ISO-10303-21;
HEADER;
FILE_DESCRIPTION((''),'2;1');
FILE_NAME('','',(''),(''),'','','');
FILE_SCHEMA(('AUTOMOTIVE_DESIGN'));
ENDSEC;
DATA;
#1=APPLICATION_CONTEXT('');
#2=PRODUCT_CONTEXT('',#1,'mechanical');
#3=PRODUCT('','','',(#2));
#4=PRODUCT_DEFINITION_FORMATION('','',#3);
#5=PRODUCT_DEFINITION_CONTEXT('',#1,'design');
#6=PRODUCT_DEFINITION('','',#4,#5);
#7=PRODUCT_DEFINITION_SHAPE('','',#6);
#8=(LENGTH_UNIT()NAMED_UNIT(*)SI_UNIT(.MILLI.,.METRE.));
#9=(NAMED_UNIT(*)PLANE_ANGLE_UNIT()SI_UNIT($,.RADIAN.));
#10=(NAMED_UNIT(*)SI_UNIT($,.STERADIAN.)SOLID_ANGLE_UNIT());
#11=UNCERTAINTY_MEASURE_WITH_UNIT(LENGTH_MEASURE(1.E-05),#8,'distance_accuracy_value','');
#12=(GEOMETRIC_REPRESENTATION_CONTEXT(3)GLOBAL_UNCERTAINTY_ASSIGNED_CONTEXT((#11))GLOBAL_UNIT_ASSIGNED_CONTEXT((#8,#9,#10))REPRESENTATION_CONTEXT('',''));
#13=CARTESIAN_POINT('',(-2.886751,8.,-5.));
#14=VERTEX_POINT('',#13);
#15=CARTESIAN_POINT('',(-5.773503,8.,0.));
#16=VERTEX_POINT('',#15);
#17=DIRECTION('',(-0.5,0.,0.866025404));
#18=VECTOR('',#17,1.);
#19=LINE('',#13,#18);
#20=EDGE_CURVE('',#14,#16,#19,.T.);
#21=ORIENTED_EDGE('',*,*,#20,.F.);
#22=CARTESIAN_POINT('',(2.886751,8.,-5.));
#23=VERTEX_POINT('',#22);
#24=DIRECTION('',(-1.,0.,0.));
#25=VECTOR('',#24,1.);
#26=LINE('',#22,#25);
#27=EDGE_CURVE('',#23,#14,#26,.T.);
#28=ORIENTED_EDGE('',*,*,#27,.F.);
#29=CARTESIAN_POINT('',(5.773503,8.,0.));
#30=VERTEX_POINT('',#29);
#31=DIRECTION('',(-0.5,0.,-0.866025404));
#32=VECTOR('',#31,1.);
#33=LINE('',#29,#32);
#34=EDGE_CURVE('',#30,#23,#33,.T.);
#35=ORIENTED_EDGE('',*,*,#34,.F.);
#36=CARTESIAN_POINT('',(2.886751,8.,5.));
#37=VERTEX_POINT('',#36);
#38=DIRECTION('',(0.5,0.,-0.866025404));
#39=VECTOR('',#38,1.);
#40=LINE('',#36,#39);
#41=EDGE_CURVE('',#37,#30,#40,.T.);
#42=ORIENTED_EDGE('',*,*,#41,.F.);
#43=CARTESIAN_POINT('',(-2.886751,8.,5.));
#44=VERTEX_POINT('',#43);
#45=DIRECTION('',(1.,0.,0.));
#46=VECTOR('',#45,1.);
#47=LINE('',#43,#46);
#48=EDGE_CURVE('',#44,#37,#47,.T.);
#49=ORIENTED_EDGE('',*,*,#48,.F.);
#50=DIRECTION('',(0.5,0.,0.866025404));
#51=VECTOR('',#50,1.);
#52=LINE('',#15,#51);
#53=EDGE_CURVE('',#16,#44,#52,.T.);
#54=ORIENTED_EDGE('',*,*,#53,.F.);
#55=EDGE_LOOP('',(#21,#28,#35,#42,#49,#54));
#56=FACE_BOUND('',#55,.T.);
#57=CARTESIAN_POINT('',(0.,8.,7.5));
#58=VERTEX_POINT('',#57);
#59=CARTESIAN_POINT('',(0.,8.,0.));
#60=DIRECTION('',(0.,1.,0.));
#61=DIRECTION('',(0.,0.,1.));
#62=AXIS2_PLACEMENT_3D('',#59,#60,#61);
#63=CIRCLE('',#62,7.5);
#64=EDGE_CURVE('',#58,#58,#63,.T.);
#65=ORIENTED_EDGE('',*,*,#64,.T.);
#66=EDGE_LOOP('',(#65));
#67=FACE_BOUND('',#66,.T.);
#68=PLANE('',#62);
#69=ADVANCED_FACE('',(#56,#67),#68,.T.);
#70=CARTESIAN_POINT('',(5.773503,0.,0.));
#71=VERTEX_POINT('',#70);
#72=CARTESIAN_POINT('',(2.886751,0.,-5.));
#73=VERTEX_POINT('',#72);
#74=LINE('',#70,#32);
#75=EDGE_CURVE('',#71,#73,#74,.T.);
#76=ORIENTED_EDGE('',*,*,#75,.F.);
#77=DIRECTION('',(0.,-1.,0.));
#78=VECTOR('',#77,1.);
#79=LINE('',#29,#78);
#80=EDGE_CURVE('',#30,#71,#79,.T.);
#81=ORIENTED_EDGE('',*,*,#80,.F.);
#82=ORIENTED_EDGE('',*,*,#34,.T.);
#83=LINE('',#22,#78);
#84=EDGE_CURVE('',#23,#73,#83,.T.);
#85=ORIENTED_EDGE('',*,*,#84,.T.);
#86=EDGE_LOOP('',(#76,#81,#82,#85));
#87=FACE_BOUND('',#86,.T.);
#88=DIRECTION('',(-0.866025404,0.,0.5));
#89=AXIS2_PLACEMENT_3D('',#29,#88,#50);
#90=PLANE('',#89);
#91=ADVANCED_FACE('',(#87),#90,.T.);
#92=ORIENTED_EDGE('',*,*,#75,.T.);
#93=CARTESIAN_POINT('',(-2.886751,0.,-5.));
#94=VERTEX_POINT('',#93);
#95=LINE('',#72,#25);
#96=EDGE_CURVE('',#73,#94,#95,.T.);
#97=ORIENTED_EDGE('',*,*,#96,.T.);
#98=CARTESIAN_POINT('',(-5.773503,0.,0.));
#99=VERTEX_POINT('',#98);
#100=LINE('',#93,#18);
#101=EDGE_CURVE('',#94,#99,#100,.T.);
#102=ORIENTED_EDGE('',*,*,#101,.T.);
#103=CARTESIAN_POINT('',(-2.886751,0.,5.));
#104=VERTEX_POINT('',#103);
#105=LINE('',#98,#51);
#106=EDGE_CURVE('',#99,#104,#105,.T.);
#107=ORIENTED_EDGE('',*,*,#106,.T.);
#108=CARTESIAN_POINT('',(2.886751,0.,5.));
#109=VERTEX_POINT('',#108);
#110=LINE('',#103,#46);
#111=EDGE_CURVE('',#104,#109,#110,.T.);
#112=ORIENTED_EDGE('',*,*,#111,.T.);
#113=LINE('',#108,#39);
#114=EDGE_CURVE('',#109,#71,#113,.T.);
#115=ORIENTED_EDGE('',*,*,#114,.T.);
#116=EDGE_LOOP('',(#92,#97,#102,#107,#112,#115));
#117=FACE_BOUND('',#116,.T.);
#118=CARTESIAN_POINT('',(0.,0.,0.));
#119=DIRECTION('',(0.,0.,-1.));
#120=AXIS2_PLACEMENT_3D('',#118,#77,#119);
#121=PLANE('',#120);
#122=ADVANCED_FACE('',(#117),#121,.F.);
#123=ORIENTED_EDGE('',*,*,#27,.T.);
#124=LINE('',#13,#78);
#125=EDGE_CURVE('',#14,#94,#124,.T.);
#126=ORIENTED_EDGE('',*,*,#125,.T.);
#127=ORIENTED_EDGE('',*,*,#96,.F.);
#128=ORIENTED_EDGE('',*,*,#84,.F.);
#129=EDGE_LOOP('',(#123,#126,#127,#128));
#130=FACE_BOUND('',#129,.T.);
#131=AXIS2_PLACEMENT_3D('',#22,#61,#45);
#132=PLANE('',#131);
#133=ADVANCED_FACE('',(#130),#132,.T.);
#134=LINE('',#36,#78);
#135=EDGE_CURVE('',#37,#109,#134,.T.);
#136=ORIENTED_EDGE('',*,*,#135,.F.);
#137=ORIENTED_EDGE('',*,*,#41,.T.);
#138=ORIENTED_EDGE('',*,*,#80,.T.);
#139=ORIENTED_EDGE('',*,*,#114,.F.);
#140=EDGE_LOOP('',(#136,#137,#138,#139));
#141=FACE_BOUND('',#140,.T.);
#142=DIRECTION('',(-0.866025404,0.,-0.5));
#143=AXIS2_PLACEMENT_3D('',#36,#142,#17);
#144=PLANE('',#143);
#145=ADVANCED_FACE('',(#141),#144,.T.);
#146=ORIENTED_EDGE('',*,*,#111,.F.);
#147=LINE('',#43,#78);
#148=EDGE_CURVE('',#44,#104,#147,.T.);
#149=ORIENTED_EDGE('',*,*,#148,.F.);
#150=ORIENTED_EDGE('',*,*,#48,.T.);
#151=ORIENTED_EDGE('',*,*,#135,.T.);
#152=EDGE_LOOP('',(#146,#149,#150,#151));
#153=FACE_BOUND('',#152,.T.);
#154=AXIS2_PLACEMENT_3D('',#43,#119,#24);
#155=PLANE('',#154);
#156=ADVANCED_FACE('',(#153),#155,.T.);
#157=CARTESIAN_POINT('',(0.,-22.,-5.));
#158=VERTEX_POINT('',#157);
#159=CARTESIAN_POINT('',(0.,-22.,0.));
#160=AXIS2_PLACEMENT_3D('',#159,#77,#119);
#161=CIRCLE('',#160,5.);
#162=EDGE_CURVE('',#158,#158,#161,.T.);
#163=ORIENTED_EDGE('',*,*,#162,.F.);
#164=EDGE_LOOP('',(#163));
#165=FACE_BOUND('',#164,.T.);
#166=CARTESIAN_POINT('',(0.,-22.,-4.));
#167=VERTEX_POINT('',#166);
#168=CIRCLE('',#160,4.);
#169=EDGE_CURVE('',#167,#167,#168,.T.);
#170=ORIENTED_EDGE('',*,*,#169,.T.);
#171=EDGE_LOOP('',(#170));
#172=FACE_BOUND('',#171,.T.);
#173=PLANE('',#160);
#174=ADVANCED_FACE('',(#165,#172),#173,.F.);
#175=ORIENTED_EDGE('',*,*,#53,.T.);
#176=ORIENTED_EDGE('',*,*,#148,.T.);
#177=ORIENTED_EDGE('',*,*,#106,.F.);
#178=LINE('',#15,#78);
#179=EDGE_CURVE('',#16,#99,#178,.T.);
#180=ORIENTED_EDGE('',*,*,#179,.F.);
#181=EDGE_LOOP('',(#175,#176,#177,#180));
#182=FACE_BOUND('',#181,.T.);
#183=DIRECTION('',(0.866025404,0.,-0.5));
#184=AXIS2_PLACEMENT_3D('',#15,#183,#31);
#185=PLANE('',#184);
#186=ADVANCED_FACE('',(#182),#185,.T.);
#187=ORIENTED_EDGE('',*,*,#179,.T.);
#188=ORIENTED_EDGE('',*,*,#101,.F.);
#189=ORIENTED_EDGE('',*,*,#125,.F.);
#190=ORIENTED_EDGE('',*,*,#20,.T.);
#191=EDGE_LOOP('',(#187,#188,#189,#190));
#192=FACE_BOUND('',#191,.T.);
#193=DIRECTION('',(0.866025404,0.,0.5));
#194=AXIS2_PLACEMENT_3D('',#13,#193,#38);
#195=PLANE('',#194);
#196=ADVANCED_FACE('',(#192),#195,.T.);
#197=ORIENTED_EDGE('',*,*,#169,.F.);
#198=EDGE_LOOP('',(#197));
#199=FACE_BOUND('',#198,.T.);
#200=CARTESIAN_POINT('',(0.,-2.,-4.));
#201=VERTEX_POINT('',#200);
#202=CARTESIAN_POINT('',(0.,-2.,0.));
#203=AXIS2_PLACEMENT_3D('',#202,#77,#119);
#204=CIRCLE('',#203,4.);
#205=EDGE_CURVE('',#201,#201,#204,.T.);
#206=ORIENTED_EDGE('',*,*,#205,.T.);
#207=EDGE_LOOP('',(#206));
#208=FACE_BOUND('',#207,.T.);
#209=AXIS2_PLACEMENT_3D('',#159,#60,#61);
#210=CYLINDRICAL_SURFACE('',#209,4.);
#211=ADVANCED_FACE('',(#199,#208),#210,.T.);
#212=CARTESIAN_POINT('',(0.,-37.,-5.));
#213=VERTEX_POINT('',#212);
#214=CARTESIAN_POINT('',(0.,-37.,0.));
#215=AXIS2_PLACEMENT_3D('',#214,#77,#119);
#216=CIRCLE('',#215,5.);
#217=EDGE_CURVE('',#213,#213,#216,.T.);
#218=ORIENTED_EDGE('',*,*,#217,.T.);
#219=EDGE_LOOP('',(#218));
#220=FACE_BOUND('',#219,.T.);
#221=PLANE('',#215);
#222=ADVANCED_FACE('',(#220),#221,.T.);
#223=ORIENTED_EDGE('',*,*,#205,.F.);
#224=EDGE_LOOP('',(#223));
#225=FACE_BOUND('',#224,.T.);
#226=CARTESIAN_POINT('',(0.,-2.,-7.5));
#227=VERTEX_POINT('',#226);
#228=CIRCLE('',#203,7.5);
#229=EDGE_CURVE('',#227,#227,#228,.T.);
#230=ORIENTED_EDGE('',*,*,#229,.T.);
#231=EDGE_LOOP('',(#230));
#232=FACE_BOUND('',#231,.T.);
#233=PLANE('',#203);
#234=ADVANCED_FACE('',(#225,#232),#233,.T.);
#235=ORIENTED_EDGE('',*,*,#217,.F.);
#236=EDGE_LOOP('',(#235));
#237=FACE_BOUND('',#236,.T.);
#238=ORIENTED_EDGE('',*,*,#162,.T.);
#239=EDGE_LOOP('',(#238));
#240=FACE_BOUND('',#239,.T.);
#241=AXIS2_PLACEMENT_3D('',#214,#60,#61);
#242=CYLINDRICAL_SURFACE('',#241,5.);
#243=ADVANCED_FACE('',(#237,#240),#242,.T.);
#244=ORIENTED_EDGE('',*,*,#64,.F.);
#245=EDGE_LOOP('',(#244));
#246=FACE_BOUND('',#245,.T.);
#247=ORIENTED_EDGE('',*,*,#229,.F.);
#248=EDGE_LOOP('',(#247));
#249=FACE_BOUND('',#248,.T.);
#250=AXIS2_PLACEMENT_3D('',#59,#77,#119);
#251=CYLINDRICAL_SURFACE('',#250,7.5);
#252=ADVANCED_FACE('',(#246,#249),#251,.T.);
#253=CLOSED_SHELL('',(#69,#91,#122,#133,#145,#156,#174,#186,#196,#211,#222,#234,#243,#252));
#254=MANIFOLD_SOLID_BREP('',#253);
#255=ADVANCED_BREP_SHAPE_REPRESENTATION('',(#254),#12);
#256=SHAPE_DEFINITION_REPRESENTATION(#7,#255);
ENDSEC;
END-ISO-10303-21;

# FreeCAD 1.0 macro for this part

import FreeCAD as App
import Part
import Sketcher
Q = App.Units.Quantity

doc = App.newDocument("Part")
body = doc.addObject("PartDesign::Body", "Body")

sketch1 = body.newObject("Sketcher::SketchObject", "Sketch")
sketch1.AttachmentSupport = (doc.getObject("XZ_Plane"), [""])
sketch1.MapMode = "FlatFace"
sketch1.addGeometry([
    Part.Circle(App.Vector(0, 0, 0), App.Vector(0, 0, 1), 8),
    Part.LineSegment(App.Vector(3, -5, 0), App.Vector(6, 0, 0)),
    Part.LineSegment(App.Vector(6, 0, 0), App.Vector(3, 5, 0)),
    Part.LineSegment(App.Vector(3, 5, 0), App.Vector(-3, 5, 0)),
    Part.LineSegment(App.Vector(-3, 5, 0), App.Vector(-6, 0, 0)),
    Part.LineSegment(App.Vector(-6, 0, 0), App.Vector(-3, -5, 0)),
    Part.LineSegment(App.Vector(-3, -5, 0), App.Vector(3, -5, 0)),
], False)
sketch1.addConstraint([
    Sketcher.Constraint("Coincident", 1, 2, 2, 1),
    Sketcher.Constraint("Coincident", 2, 2, 3, 1),
    Sketcher.Constraint("Coincident", 3, 2, 4, 1),
    Sketcher.Constraint("Coincident", 4, 2, 5, 1),
    Sketcher.Constraint("Coincident", 5, 2, 6, 1),
    Sketcher.Constraint("Coincident", 6, 2, 1, 1),
    Sketcher.Constraint("Horizontal", 3),
    Sketcher.Constraint("Horizontal", 6),
    Sketcher.Constraint("Coincident", 0, 3, -1, 1),
    Sketcher.Constraint("Symmetric", 1, 2, 4, 2, -1, 1),
    Sketcher.Constraint("Symmetric", 2, 2, 5, 2, -1, 1),
    Sketcher.Constraint("PointOnObject", 1, 2, -1),
    Sketcher.Constraint("Parallel", 1, 4),
    Sketcher.Constraint("Vertical", 3, 2, 5, 2),
    Sketcher.Constraint("Diameter", 0, Q("15 mm")),
    Sketcher.Constraint("Angle", 1, Q("60 deg")),
    Sketcher.Constraint("DistanceY", -1, 1, 2, 2, Q("5 mm")),
    Sketcher.Constraint("DistanceX", 3, 2, 3, 1, Q("5.773503 mm")),
])
pad1 = body.newObject("PartDesign::Pad", "Pad")
pad1.Profile = sketch1
pad1.Length = 8
pad1.Reversed = True

sketch2 = body.newObject("Sketcher::SketchObject", "Sketch001")
sketch2.AttachmentSupport = (doc.getObject("XZ_Plane"), [""])
sketch2.MapMode = "FlatFace"
sketch2.addGeometry(Part.Circle(App.Vector(0, 0, 0), App.Vector(0, 0, 1), 8), False)
sketch2.addConstraint([
    Sketcher.Constraint("Coincident", 0, 3, -1, 1),
    Sketcher.Constraint("Diameter", 0, Q("15 mm")),
])
pad2 = body.newObject("PartDesign::Pad", "Pad001")
pad2.Profile = sketch2
pad2.Length = 2

sketch3 = body.newObject("Sketcher::SketchObject", "Sketch002")
sketch3.AttachmentSupport = (doc.getObject("XZ_Plane"), [""])
sketch3.MapMode = "FlatFace"
sketch3.AttachmentOffset = App.Placement(App.Vector(0, 0, 2), App.Rotation())
sketch3.addGeometry(Part.Circle(App.Vector(0, 0, 0), App.Vector(0, 0, 1), 4), False)
sketch3.addConstraint([
    Sketcher.Constraint("Coincident", 0, 3, -1, 1),
    Sketcher.Constraint("Diameter", 0, Q("8 mm")),
])
pad3 = body.newObject("PartDesign::Pad", "Pad002")
pad3.Profile = sketch3
pad3.Length = 20

sketch4 = body.newObject("Sketcher::SketchObject", "Sketch003")
sketch4.AttachmentSupport = (doc.getObject("XZ_Plane"), [""])
sketch4.MapMode = "FlatFace"
sketch4.AttachmentOffset = App.Placement(App.Vector(0, 0, 22), App.Rotation())
sketch4.addGeometry(Part.Circle(App.Vector(0, 0, 0), App.Vector(0, 0, 1), 5), False)
sketch4.addConstraint([
    Sketcher.Constraint("Coincident", 0, 3, -1, 1),
    Sketcher.Constraint("Diameter", 0, Q("10 mm")),
])
pad4 = body.newObject("PartDesign::Pad", "Pad003")
pad4.Profile = sketch4
pad4.Length = 15

doc.recompute()
